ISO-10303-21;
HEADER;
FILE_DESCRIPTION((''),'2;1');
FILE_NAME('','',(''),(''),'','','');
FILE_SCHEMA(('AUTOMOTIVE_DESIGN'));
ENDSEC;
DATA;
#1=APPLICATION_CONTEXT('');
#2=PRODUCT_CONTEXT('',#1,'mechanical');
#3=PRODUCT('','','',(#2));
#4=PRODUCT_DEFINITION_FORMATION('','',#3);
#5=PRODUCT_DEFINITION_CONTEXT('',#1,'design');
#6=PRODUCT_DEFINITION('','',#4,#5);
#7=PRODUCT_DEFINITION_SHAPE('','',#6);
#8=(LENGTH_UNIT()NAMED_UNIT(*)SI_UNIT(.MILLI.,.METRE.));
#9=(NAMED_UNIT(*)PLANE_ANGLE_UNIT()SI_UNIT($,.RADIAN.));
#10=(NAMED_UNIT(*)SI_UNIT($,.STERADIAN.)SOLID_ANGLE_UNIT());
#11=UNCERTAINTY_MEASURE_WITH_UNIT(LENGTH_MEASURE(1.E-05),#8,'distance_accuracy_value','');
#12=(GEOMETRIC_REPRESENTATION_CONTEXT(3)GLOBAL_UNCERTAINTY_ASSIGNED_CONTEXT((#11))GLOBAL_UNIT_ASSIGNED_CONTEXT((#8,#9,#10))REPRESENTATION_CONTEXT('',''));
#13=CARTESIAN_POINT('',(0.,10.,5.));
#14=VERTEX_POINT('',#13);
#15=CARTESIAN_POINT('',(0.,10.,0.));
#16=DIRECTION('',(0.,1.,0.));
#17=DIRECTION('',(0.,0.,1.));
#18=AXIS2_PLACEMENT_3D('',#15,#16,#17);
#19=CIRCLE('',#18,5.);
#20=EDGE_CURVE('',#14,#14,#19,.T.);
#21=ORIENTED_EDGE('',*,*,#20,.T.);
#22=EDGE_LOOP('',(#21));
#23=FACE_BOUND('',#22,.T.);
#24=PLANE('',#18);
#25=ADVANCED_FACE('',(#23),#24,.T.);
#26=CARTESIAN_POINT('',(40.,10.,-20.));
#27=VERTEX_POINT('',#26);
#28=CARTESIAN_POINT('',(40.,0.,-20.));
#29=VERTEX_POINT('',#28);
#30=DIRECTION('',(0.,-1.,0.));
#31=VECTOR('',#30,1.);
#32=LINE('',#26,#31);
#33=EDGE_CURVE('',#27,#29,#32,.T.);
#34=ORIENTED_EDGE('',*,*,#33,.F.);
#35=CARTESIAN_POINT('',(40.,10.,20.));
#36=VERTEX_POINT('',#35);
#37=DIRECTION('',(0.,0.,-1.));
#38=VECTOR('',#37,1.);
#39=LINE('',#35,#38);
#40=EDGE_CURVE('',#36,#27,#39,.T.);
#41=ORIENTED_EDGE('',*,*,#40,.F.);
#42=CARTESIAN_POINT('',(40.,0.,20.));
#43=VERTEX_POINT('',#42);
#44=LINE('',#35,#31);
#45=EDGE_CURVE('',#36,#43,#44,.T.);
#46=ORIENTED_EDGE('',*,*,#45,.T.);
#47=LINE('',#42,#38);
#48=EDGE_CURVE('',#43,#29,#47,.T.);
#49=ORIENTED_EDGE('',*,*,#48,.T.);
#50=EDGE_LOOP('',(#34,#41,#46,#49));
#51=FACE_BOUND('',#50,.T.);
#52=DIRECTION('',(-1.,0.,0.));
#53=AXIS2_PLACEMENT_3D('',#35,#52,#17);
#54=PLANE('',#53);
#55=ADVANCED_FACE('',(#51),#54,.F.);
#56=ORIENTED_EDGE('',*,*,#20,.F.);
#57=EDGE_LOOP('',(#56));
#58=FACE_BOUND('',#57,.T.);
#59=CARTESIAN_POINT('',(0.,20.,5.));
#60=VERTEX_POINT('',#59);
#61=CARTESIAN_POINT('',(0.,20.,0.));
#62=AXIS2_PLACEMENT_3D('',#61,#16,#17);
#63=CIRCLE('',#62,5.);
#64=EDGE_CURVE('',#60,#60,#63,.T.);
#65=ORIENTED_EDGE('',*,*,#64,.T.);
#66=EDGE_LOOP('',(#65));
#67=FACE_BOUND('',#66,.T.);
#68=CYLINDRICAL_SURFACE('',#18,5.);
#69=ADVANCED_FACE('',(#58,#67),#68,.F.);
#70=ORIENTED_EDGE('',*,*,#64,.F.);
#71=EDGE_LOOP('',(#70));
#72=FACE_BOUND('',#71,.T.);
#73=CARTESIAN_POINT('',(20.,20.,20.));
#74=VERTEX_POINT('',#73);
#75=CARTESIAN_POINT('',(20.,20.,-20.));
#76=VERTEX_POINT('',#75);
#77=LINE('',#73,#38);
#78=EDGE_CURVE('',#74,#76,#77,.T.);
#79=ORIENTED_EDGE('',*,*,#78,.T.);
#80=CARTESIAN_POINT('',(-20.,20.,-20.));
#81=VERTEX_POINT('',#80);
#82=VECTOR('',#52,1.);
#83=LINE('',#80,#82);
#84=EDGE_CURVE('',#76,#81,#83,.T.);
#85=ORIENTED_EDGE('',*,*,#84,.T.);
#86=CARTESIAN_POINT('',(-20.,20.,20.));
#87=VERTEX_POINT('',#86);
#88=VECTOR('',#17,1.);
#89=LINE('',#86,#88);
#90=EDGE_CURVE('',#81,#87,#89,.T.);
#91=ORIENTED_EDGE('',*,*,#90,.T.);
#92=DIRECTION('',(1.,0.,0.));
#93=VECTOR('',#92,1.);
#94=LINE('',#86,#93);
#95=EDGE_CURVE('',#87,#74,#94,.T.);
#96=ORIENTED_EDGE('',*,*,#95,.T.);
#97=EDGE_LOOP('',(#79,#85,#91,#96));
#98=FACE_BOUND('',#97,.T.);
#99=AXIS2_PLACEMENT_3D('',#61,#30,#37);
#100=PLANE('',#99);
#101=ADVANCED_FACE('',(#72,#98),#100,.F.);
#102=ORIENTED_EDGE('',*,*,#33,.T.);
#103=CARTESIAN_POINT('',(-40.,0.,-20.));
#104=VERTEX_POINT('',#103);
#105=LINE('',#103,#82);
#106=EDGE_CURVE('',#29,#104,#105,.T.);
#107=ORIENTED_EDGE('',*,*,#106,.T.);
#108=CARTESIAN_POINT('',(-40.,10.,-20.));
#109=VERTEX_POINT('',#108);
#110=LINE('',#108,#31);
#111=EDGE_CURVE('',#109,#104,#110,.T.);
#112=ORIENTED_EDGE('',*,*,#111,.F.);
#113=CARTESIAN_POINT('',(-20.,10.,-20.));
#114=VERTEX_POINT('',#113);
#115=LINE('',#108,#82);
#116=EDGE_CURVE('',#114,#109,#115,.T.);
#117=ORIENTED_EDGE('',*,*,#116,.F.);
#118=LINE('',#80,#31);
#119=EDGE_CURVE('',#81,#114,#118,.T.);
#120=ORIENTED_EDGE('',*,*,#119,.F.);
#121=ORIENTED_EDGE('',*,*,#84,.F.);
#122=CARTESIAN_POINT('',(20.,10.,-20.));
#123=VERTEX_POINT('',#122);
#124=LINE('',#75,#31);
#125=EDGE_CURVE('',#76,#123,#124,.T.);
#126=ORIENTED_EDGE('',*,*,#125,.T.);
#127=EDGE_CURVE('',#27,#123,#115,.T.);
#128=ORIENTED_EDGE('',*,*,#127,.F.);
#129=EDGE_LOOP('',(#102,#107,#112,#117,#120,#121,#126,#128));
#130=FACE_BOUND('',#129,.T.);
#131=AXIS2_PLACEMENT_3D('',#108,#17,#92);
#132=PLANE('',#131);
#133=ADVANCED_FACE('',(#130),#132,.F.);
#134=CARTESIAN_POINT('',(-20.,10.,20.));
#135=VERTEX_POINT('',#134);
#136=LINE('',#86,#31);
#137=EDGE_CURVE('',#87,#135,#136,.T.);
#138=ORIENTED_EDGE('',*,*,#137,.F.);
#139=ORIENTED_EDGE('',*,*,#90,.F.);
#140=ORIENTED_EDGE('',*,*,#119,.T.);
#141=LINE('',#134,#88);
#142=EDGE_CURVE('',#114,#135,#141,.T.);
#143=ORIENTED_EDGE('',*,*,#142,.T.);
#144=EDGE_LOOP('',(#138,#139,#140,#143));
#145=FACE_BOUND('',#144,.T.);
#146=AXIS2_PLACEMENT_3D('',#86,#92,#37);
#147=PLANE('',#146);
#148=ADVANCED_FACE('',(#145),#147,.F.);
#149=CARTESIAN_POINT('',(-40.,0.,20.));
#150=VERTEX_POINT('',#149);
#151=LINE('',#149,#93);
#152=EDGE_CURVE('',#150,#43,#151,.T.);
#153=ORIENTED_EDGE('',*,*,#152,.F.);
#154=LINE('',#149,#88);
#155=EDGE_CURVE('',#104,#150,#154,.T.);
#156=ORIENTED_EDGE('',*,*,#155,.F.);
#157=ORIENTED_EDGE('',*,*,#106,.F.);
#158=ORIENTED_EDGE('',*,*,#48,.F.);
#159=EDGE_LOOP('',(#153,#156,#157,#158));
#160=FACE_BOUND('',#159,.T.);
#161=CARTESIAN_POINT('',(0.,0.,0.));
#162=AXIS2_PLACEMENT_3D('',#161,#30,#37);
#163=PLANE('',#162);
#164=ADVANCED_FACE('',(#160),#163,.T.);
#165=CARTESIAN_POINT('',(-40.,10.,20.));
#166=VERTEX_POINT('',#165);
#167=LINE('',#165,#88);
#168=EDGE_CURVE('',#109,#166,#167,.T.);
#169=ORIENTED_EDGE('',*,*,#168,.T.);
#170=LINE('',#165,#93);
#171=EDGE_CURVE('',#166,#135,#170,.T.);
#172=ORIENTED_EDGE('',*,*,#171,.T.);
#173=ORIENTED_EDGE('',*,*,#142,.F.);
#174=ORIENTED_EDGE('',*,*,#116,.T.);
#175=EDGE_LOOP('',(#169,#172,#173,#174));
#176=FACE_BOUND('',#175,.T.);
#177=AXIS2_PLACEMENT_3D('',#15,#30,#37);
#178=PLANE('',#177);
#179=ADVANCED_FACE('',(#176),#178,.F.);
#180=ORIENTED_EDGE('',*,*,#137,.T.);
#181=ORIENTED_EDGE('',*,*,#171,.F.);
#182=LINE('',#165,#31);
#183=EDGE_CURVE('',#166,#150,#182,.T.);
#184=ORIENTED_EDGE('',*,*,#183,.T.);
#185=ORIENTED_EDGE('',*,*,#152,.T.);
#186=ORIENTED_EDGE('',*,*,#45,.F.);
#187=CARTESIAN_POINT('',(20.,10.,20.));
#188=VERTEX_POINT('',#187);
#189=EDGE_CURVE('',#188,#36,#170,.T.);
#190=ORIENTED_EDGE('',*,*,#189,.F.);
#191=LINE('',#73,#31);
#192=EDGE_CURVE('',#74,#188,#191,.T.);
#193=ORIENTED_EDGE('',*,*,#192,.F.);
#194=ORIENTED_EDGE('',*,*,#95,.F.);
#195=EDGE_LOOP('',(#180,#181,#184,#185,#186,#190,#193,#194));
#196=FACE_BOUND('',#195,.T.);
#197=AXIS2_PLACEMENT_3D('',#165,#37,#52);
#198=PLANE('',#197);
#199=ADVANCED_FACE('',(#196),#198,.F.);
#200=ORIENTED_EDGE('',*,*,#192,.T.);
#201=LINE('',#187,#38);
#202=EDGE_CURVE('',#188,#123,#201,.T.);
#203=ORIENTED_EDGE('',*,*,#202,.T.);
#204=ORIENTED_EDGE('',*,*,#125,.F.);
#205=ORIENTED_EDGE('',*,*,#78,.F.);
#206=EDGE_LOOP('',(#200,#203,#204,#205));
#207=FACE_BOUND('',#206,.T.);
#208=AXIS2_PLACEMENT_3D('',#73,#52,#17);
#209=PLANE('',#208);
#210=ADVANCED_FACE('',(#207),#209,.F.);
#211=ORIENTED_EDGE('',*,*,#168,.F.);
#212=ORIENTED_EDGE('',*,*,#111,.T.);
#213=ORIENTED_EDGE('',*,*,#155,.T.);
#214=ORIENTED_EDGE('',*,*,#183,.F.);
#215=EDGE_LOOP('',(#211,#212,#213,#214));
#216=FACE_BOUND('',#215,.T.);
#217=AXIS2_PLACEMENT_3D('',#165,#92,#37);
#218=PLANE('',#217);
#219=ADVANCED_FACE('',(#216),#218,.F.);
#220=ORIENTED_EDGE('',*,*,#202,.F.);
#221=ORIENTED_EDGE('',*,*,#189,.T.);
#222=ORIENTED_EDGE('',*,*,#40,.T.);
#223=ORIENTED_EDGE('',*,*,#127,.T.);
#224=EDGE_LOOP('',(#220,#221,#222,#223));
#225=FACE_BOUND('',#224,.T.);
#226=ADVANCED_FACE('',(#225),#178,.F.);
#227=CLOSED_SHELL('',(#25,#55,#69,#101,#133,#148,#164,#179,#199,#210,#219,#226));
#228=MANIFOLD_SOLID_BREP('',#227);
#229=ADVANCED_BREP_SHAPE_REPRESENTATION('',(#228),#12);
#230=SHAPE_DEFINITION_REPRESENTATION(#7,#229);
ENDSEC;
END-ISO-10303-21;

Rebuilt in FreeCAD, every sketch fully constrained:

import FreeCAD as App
import Part
import Sketcher

doc = App.newDocument("Part")
body = doc.addObject("PartDesign::Body", "Body")

sketch1 = doc.addObject("Sketcher::SketchObject", "Sketch")
body.addObject(sketch1)
sketch1.AttachmentSupport = (doc.XZ_Plane, [""])
sketch1.MapMode = "FlatFace"
sketch1.addGeometry([
    Part.LineSegment(App.Vector(-40, -20, 0), App.Vector(-40, 20, 0)),
    Part.LineSegment(App.Vector(-40, 20, 0), App.Vector(40, 20, 0)),
    Part.LineSegment(App.Vector(40, 20, 0), App.Vector(40, -20, 0)),
    Part.LineSegment(App.Vector(40, -20, 0), App.Vector(-40, -20, 0)),
], False)
sketch1.addConstraint([
    Sketcher.Constraint("Coincident", 0, 2, 1, 1),
    Sketcher.Constraint("Coincident", 1, 2, 2, 1),
    Sketcher.Constraint("Coincident", 2, 2, 3, 1),
    Sketcher.Constraint("Coincident", 3, 2, 0, 1),
    Sketcher.Constraint("Vertical", 0),
    Sketcher.Constraint("Horizontal", 1),
    Sketcher.Constraint("Vertical", 2),
    Sketcher.Constraint("Horizontal", 3),
    Sketcher.Constraint("Symmetric", 0, 2, 2, 2, -1, 1),
    Sketcher.Constraint("DistanceX", 1, 1, 1, 2, 80.0),
    Sketcher.Constraint("DistanceY", 0, 1, 0, 2, 40.0),
])
pad1 = doc.addObject("PartDesign::Pad", "Pad")
body.addObject(pad1)
pad1.Profile = sketch1
pad1.Length = 10
pad1.Reversed = True

sketch2 = doc.addObject("Sketcher::SketchObject", "Sketch001")
body.addObject(sketch2)
sketch2.AttachmentSupport = (doc.XZ_Plane, [""])
sketch2.MapMode = "FlatFace"
sketch2.AttachmentOffset = App.Placement(App.Vector(0, 0, -10), App.Rotation())
sketch2.addGeometry([
    Part.LineSegment(App.Vector(-20, -20, 0), App.Vector(-20, 20, 0)),
    Part.LineSegment(App.Vector(-20, 20, 0), App.Vector(20, 20, 0)),
    Part.LineSegment(App.Vector(20, 20, 0), App.Vector(20, -20, 0)),
    Part.LineSegment(App.Vector(20, -20, 0), App.Vector(-20, -20, 0)),
], False)
sketch2.addConstraint([
    Sketcher.Constraint("Coincident", 0, 2, 1, 1),
    Sketcher.Constraint("Coincident", 1, 2, 2, 1),
    Sketcher.Constraint("Coincident", 2, 2, 3, 1),
    Sketcher.Constraint("Coincident", 3, 2, 0, 1),
    Sketcher.Constraint("Vertical", 0),
    Sketcher.Constraint("Horizontal", 1),
    Sketcher.Constraint("Vertical", 2),
    Sketcher.Constraint("Horizontal", 3),
    Sketcher.Constraint("Symmetric", 0, 2, 2, 2, -1, 1),
    Sketcher.Constraint("Equal", 3, 0),
    Sketcher.Constraint("DistanceX", 1, 1, 1, 2, 40.0),
])
pad2 = doc.addObject("PartDesign::Pad", "Pad001")
body.addObject(pad2)
pad2.Profile = sketch2
pad2.Length = 10
pad2.Reversed = True

sketch3 = doc.addObject("Sketcher::SketchObject", "Sketch002")
body.addObject(sketch3)
sketch3.AttachmentSupport = (doc.XZ_Plane, [""])
sketch3.MapMode = "FlatFace"
sketch3.AttachmentOffset = App.Placement(App.Vector(0, 0, -20), App.Rotation())
sketch3.addGeometry(Part.Circle(App.Vector(0, 0, 0), App.Vector(0, 0, 1), 5), False)
sketch3.addConstraint([
    Sketcher.Constraint("Coincident", 0, 3, -1, 1),
    Sketcher.Constraint("Diameter", 0, 10.0),
])
pocket1 = doc.addObject("PartDesign::Pocket", "Pocket")
body.addObject(pocket1)
pocket1.Profile = sketch3
pocket1.Length = 10
pocket1.Reversed = True

sketch4 = doc.addObject("Sketcher::SketchObject", "Sketch003")
body.addObject(sketch4)
sketch4.AttachmentSupport = (doc.XZ_Plane, [""])
sketch4.MapMode = "FlatFace"
sketch4.AttachmentOffset = App.Placement(App.Vector(0, 0, -10), App.Rotation())
sketch4.addGeometry(Part.Circle(App.Vector(0, 0, 0), App.Vector(0, 0, 1), 5), False)
sketch4.addConstraint([
    Sketcher.Constraint("Coincident", 0, 3, -1, 1),
    Sketcher.Constraint("Diameter", 0, 10.0),
])
pad3 = doc.addObject("PartDesign::Pad", "Pad002")
body.addObject(pad3)
pad3.Profile = sketch4
pad3.Length = 10
pad3.Reversed = True

sketch5 = doc.addObject("Sketcher::SketchObject", "Sketch004")
body.addObject(sketch5)
sketch5.AttachmentSupport = (doc.XZ_Plane, [""])
sketch5.MapMode = "FlatFace"
sketch5.AttachmentOffset = App.Placement(App.Vector(0, 0, -20), App.Rotation())
sketch5.addGeometry(Part.Circle(App.Vector(0, 0, 0), App.Vector(0, 0, 1), 5), False)
sketch5.addConstraint([
    Sketcher.Constraint("Coincident", 0, 3, -1, 1),
    Sketcher.Constraint("Diameter", 0, 10.0),
])
pocket2 = doc.addObject("PartDesign::Pocket", "Pocket001")
body.addObject(pocket2)
pocket2.Profile = sketch5
pocket2.Length = 10
pocket2.Reversed = True

doc.recompute()
